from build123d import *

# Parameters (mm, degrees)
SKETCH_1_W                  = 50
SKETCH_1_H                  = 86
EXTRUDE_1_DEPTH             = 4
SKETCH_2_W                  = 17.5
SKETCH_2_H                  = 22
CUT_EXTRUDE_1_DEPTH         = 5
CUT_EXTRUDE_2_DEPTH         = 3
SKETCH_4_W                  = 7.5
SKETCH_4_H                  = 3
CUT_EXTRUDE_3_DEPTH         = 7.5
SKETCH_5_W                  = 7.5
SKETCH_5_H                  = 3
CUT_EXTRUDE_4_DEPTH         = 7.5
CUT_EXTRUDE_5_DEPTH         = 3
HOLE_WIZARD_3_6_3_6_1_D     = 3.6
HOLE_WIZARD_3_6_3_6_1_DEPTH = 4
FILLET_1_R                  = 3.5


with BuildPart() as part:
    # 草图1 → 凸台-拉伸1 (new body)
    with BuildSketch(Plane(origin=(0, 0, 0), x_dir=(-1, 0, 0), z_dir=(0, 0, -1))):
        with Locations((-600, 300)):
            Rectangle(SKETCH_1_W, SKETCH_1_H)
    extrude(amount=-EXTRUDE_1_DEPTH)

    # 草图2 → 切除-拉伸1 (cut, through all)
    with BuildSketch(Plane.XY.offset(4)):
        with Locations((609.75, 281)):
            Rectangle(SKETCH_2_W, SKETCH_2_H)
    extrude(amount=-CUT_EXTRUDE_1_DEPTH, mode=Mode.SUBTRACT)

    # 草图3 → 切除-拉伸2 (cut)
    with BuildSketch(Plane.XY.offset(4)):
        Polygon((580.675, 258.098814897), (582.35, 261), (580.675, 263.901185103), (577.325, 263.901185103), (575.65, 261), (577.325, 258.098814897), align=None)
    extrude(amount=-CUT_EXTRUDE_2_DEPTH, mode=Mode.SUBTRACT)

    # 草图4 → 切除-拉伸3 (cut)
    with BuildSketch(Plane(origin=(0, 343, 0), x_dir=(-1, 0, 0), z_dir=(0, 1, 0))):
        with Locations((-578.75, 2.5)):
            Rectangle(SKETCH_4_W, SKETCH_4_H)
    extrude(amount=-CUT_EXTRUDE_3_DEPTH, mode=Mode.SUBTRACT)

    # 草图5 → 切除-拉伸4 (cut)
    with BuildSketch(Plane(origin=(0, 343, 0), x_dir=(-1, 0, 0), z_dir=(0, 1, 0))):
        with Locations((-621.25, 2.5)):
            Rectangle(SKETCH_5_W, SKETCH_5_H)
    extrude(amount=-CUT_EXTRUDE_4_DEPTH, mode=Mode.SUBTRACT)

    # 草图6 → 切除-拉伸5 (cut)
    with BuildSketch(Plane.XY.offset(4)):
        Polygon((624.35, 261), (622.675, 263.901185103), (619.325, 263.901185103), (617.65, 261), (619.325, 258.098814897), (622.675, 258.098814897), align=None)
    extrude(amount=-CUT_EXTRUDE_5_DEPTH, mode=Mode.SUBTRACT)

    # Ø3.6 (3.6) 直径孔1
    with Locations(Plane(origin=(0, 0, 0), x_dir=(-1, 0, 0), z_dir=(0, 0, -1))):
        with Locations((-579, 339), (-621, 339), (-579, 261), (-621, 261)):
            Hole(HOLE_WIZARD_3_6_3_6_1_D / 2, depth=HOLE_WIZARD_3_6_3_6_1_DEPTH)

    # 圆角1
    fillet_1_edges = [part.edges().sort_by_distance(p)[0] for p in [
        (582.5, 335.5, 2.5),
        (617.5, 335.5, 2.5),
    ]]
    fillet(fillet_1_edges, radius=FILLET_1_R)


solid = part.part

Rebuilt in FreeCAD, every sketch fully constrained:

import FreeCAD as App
import Part
import Sketcher
Q = App.Units.Quantity


def edges_at(feature, points):
    """Names of the edges that pass closest to the given points."""
    edges = feature.Shape.Edges
    near = lambda p: min(range(len(edges)), key=lambda i: edges[i].distToShape(Part.Vertex(*p))[0])
    return sorted({f"Edge{near(p) + 1}" for p in points})

doc = App.newDocument("Part")
body = doc.addObject("PartDesign::Body", "Body")

# Sketch on XY plane
sketch1 = doc.addObject("Sketcher::SketchObject", "Sketch")
body.addObject(sketch1)
sketch1.AttachmentSupport = (doc.XY_Plane, [""])
sketch1.MapMode = "FlatFace"
sketch1.addGeometry([
    Part.LineSegment(App.Vector(625, 343, 0), App.Vector(625, 257, 0)),
    Part.LineSegment(App.Vector(625, 257, 0), App.Vector(575, 257, 0)),
    Part.LineSegment(App.Vector(575, 257, 0), App.Vector(575, 343, 0)),
    Part.LineSegment(App.Vector(575, 343, 0), App.Vector(625, 343, 0)),
], False)
sketch1.addConstraint([
    Sketcher.Constraint("Coincident", 0, 2, 1, 1),
    Sketcher.Constraint("Coincident", 1, 2, 2, 1),
    Sketcher.Constraint("Coincident", 2, 2, 3, 1),
    Sketcher.Constraint("Coincident", 3, 2, 0, 1),
    Sketcher.Constraint("Vertical", 0),
    Sketcher.Constraint("Horizontal", 1),
    Sketcher.Constraint("Vertical", 2),
    Sketcher.Constraint("Horizontal", 3),
    Sketcher.Constraint("DistanceX", 1, 2, 1, 1, Q("50 mm")),
    Sketcher.Constraint("DistanceY", 0, 2, 0, 1, Q("86 mm")),
    Sketcher.Constraint("DistanceX", -1, 1, 0, 2, Q("625 mm")),
    Sketcher.Constraint("DistanceY", -1, 1, 0, 2, Q("257 mm")),
])
pad1 = doc.addObject("PartDesign::Pad", "Pad")
body.addObject(pad1)
pad1.Profile = sketch1
pad1.Length = 4

# Sketch on XY plane
sketch2 = doc.addObject("Sketcher::SketchObject", "Sketch001")
body.addObject(sketch2)
sketch2.AttachmentSupport = (doc.XY_Plane, [""])
sketch2.MapMode = "FlatFace"
sketch2.AttachmentOffset = App.Placement(App.Vector(0, 0, 4), App.Rotation())
sketch2.addGeometry([
    Part.LineSegment(App.Vector(601, 292, 0), App.Vector(601, 270, 0)),
    Part.LineSegment(App.Vector(601, 270, 0), App.Vector(618, 270, 0)),
    Part.LineSegment(App.Vector(618, 270, 0), App.Vector(618, 292, 0)),
    Part.LineSegment(App.Vector(618, 292, 0), App.Vector(601, 292, 0)),
], False)
sketch2.addConstraint([
    Sketcher.Constraint("Coincident", 0, 2, 1, 1),
    Sketcher.Constraint("Coincident", 1, 2, 2, 1),
    Sketcher.Constraint("Coincident", 2, 2, 3, 1),
    Sketcher.Constraint("Coincident", 3, 2, 0, 1),
    Sketcher.Constraint("Vertical", 0),
    Sketcher.Constraint("Horizontal", 1),
    Sketcher.Constraint("Vertical", 2),
    Sketcher.Constraint("Horizontal", 3),
    Sketcher.Constraint("DistanceY", 0, 2, 0, 1, Q("22 mm")),
    Sketcher.Constraint("DistanceX", 1, 1, 1, 2, Q("17.5 mm")),
    Sketcher.Constraint("DistanceX", -1, 1, 0, 2, Q("601 mm")),
    Sketcher.Constraint("DistanceY", -1, 1, 0, 2, Q("270 mm")),
])
pocket1 = doc.addObject("PartDesign::Pocket", "Pocket")
body.addObject(pocket1)
pocket1.Profile = sketch2
pocket1.Type = "ThroughAll"

# Sketch on XY plane
sketch3 = doc.addObject("Sketcher::SketchObject", "Sketch002")
body.addObject(sketch3)
sketch3.AttachmentSupport = (doc.XY_Plane, [""])
sketch3.MapMode = "FlatFace"
sketch3.AttachmentOffset = App.Placement(App.Vector(0, 0, 4), App.Rotation())
sketch3.addGeometry([
    Part.LineSegment(App.Vector(580.7, 258.1, 0), App.Vector(582.4, 261, 0)),  # 0
    Part.LineSegment(App.Vector(582.4, 261, 0), App.Vector(580.7, 263.9, 0)),  # 1
    Part.LineSegment(App.Vector(580.7, 263.9, 0), App.Vector(577.3, 263.9, 0)),  # 2
    Part.LineSegment(App.Vector(577.3, 263.9, 0), App.Vector(575.6, 261, 0)),  # 3
    Part.LineSegment(App.Vector(575.6, 261, 0), App.Vector(577.3, 258.1, 0)),  # 4
    Part.LineSegment(App.Vector(577.3, 258.1, 0), App.Vector(580.7, 258.1, 0)),  # 5
], False)
sketch3.addConstraint([
    Sketcher.Constraint("Coincident", 0, 2, 1, 1),
    Sketcher.Constraint("Coincident", 1, 2, 2, 1),
    Sketcher.Constraint("Coincident", 2, 2, 3, 1),
    Sketcher.Constraint("Coincident", 3, 2, 4, 1),
    Sketcher.Constraint("Coincident", 4, 2, 5, 1),
    Sketcher.Constraint("Coincident", 5, 2, 0, 1),
    Sketcher.Constraint("Horizontal", 2),
    Sketcher.Constraint("Horizontal", 5),
    Sketcher.Constraint("Parallel", 0, 3),
    Sketcher.Constraint("Parallel", 1, 4),
    Sketcher.Constraint("Horizontal", 0, 2, 3, 2),
    Sketcher.Constraint("Vertical", 2, 2, 4, 2),
    Sketcher.Constraint("Vertical", 1, 2, 5, 2),
    Sketcher.Constraint("Angle", 0, Q("60 deg")),
    Sketcher.Constraint("DistanceY", -1, 1, 0, 2, Q("261 mm")),
    Sketcher.Constraint("DistanceX", 2, 2, 2, 1, Q("3.35 mm")),
    Sketcher.Constraint("DistanceX", 3, 2, 0, 2, Q("6.7 mm")),
    Sketcher.Constraint("DistanceX", -1, 1, 0, 2, Q("582.35 mm")),
])
pocket2 = doc.addObject("PartDesign::Pocket", "Pocket001")
body.addObject(pocket2)
pocket2.Profile = sketch3
pocket2.Length = 3

# Sketch on XZ plane
sketch4 = doc.addObject("Sketcher::SketchObject", "Sketch003")
body.addObject(sketch4)
sketch4.AttachmentSupport = (doc.XZ_Plane, [""])
sketch4.MapMode = "FlatFace"
sketch4.AttachmentOffset = App.Placement(App.Vector(0, 0, -343), App.Rotation())
sketch4.addGeometry([
    Part.LineSegment(App.Vector(582.5, 4, 0), App.Vector(582.5, 1, 0)),
    Part.LineSegment(App.Vector(582.5, 1, 0), App.Vector(575, 1, 0)),
    Part.LineSegment(App.Vector(575, 1, 0), App.Vector(575, 4, 0)),
    Part.LineSegment(App.Vector(575, 4, 0), App.Vector(582.5, 4, 0)),
], False)
sketch4.addConstraint([
    Sketcher.Constraint("Coincident", 0, 2, 1, 1),
    Sketcher.Constraint("Coincident", 1, 2, 2, 1),
    Sketcher.Constraint("Coincident", 2, 2, 3, 1),
    Sketcher.Constraint("Coincident", 3, 2, 0, 1),
    Sketcher.Constraint("Vertical", 0),
    Sketcher.Constraint("Horizontal", 1),
    Sketcher.Constraint("Vertical", 2),
    Sketcher.Constraint("Horizontal", 3),
    Sketcher.Constraint("DistanceY", 0, 2, 0, 1, Q("3 mm")),
    Sketcher.Constraint("DistanceX", 1, 2, 1, 1, Q("7.5 mm")),
    Sketcher.Constraint("DistanceY", -1, 1, 0, 2, Q("1 mm")),
    Sketcher.Constraint("DistanceX", -1, 1, 1, 2, Q("575 mm")),
])
pocket3 = doc.addObject("PartDesign::Pocket", "Pocket002")
body.addObject(pocket3)
pocket3.Profile = sketch4
pocket3.Length = 7.5
pocket3.Reversed = True

# Sketch on XZ plane
sketch5 = doc.addObject("Sketcher::SketchObject", "Sketch004")
body.addObject(sketch5)
sketch5.AttachmentSupport = (doc.XZ_Plane, [""])
sketch5.MapMode = "FlatFace"
sketch5.AttachmentOffset = App.Placement(App.Vector(0, 0, -343), App.Rotation())
sketch5.addGeometry([
    Part.LineSegment(App.Vector(625, 4, 0), App.Vector(625, 1, 0)),
    Part.LineSegment(App.Vector(625, 1, 0), App.Vector(617.5, 1, 0)),
    Part.LineSegment(App.Vector(617.5, 1, 0), App.Vector(617.5, 4, 0)),
    Part.LineSegment(App.Vector(617.5, 4, 0), App.Vector(625, 4, 0)),
], False)
sketch5.addConstraint([
    Sketcher.Constraint("Coincident", 0, 2, 1, 1),
    Sketcher.Constraint("Coincident", 1, 2, 2, 1),
    Sketcher.Constraint("Coincident", 2, 2, 3, 1),
    Sketcher.Constraint("Coincident", 3, 2, 0, 1),
    Sketcher.Constraint("Vertical", 0),
    Sketcher.Constraint("Horizontal", 1),
    Sketcher.Constraint("Vertical", 2),
    Sketcher.Constraint("Horizontal", 3),
    Sketcher.Constraint("DistanceY", 0, 2, 0, 1, Q("3 mm")),
    Sketcher.Constraint("DistanceX", 1, 2, 1, 1, Q("7.5 mm")),
    Sketcher.Constraint("DistanceX", -1, 1, 0, 2, Q("625 mm")),
    Sketcher.Constraint("DistanceY", -1, 1, 0, 2, Q("1 mm")),
])
pocket4 = doc.addObject("PartDesign::Pocket", "Pocket003")
body.addObject(pocket4)
pocket4.Profile = sketch5
pocket4.Length = 7.5
pocket4.Reversed = True

# Sketch on XY plane
sketch6 = doc.addObject("Sketcher::SketchObject", "Sketch005")
body.addObject(sketch6)
sketch6.AttachmentSupport = (doc.XY_Plane, [""])
sketch6.MapMode = "FlatFace"
sketch6.AttachmentOffset = App.Placement(App.Vector(0, 0, 4), App.Rotation())
sketch6.addGeometry([
    Part.LineSegment(App.Vector(624.4, 261, 0), App.Vector(622.7, 263.9, 0)),  # 0
    Part.LineSegment(App.Vector(622.7, 263.9, 0), App.Vector(619.3, 263.9, 0)),  # 1
    Part.LineSegment(App.Vector(619.3, 263.9, 0), App.Vector(617.6, 261, 0)),  # 2
    Part.LineSegment(App.Vector(617.6, 261, 0), App.Vector(619.3, 258.1, 0)),  # 3
    Part.LineSegment(App.Vector(619.3, 258.1, 0), App.Vector(622.7, 258.1, 0)),  # 4
    Part.LineSegment(App.Vector(622.7, 258.1, 0), App.Vector(624.4, 261, 0)),  # 5
], False)
sketch6.addConstraint([
    Sketcher.Constraint("Coincident", 0, 2, 1, 1),
    Sketcher.Constraint("Coincident", 1, 2, 2, 1),
    Sketcher.Constraint("Coincident", 2, 2, 3, 1),
    Sketcher.Constraint("Coincident", 3, 2, 4, 1),
    Sketcher.Constraint("Coincident", 4, 2, 5, 1),
    Sketcher.Constraint("Coincident", 5, 2, 0, 1),
    Sketcher.Constraint("Horizontal", 1),
    Sketcher.Constraint("Horizontal", 4),
    Sketcher.Constraint("Parallel", 0, 3),
    Sketcher.Constraint("Parallel", 2, 5),
    Sketcher.Constraint("Horizontal", 2, 2, 5, 2),
    Sketcher.Constraint("Vertical", 1, 2, 3, 2),
    Sketcher.Constraint("Vertical", 0, 2, 4, 2),
    Sketcher.Constraint("Angle", 0, Q("120 deg")),
    Sketcher.Constraint("DistanceY", -1, 1, 2, 2, Q("261 mm")),
    Sketcher.Constraint("DistanceX", 1, 2, 1, 1, Q("3.35 mm")),
    Sketcher.Constraint("DistanceX", 2, 2, 5, 2, Q("6.7 mm")),
    Sketcher.Constraint("DistanceX", -1, 1, 2, 2, Q("617.65 mm")),
])
pocket5 = doc.addObject("PartDesign::Pocket", "Pocket004")
body.addObject(pocket5)
pocket5.Profile = sketch6
pocket5.Length = 3

# Sketch on XY plane
sketch7 = doc.addObject("Sketcher::SketchObject", "Sketch006")
body.addObject(sketch7)
sketch7.AttachmentSupport = (doc.XY_Plane, [""])
sketch7.MapMode = "FlatFace"
sketch7.addGeometry([
    Part.Circle(App.Vector(579, 339, 0), App.Vector(0, 0, 1), 1.8),
    Part.Circle(App.Vector(621, 339, 0), App.Vector(0, 0, 1), 1.8),
    Part.Circle(App.Vector(579, 261, 0), App.Vector(0, 0, 1), 1.8),
    Part.Circle(App.Vector(621, 261, 0), App.Vector(0, 0, 1), 1.8),
], False)
sketch7.addConstraint([
    Sketcher.Constraint("Equal", 0, 1),
    Sketcher.Constraint("Equal", 1, 2),
    Sketcher.Constraint("Equal", 2, 3),
    Sketcher.Constraint("Horizontal", 0, 3, 1, 3),
    Sketcher.Constraint("Horizontal", 2, 3, 3, 3),
    Sketcher.Constraint("Vertical", 0, 3, 2, 3),
    Sketcher.Constraint("Vertical", 1, 3, 3, 3),
    Sketcher.Constraint("Diameter", 0, Q("3.6 mm")),
    Sketcher.Constraint("DistanceX", -1, 1, 0, 3, Q("579 mm")),
    Sketcher.Constraint("DistanceY", -1, 1, 0, 3, Q("339 mm")),
    Sketcher.Constraint("DistanceX", -1, 1, 1, 3, Q("621 mm")),
    Sketcher.Constraint("DistanceY", -1, 1, 2, 3, Q("261 mm")),
])
doc.recompute()
hole = doc.addObject("PartDesign::Hole", "Hole")
body.addObject(hole)
hole.Profile = sketch7
hole.ThreadType = "None"
hole.Diameter = 3.6
hole.DepthType = "Dimension"
hole.Depth = 4
hole.DrillPoint = "Flat"
hole.Reversed = True
doc.recompute()

fillet = doc.addObject("PartDesign::Fillet", "Fillet")
body.addObject(fillet)
fillet.Base = (hole, edges_at(hole, [(582.5, 335.5, 2.5), (617.5, 335.5, 2.5)]))
fillet.Radius = 3.5

doc.recompute()
